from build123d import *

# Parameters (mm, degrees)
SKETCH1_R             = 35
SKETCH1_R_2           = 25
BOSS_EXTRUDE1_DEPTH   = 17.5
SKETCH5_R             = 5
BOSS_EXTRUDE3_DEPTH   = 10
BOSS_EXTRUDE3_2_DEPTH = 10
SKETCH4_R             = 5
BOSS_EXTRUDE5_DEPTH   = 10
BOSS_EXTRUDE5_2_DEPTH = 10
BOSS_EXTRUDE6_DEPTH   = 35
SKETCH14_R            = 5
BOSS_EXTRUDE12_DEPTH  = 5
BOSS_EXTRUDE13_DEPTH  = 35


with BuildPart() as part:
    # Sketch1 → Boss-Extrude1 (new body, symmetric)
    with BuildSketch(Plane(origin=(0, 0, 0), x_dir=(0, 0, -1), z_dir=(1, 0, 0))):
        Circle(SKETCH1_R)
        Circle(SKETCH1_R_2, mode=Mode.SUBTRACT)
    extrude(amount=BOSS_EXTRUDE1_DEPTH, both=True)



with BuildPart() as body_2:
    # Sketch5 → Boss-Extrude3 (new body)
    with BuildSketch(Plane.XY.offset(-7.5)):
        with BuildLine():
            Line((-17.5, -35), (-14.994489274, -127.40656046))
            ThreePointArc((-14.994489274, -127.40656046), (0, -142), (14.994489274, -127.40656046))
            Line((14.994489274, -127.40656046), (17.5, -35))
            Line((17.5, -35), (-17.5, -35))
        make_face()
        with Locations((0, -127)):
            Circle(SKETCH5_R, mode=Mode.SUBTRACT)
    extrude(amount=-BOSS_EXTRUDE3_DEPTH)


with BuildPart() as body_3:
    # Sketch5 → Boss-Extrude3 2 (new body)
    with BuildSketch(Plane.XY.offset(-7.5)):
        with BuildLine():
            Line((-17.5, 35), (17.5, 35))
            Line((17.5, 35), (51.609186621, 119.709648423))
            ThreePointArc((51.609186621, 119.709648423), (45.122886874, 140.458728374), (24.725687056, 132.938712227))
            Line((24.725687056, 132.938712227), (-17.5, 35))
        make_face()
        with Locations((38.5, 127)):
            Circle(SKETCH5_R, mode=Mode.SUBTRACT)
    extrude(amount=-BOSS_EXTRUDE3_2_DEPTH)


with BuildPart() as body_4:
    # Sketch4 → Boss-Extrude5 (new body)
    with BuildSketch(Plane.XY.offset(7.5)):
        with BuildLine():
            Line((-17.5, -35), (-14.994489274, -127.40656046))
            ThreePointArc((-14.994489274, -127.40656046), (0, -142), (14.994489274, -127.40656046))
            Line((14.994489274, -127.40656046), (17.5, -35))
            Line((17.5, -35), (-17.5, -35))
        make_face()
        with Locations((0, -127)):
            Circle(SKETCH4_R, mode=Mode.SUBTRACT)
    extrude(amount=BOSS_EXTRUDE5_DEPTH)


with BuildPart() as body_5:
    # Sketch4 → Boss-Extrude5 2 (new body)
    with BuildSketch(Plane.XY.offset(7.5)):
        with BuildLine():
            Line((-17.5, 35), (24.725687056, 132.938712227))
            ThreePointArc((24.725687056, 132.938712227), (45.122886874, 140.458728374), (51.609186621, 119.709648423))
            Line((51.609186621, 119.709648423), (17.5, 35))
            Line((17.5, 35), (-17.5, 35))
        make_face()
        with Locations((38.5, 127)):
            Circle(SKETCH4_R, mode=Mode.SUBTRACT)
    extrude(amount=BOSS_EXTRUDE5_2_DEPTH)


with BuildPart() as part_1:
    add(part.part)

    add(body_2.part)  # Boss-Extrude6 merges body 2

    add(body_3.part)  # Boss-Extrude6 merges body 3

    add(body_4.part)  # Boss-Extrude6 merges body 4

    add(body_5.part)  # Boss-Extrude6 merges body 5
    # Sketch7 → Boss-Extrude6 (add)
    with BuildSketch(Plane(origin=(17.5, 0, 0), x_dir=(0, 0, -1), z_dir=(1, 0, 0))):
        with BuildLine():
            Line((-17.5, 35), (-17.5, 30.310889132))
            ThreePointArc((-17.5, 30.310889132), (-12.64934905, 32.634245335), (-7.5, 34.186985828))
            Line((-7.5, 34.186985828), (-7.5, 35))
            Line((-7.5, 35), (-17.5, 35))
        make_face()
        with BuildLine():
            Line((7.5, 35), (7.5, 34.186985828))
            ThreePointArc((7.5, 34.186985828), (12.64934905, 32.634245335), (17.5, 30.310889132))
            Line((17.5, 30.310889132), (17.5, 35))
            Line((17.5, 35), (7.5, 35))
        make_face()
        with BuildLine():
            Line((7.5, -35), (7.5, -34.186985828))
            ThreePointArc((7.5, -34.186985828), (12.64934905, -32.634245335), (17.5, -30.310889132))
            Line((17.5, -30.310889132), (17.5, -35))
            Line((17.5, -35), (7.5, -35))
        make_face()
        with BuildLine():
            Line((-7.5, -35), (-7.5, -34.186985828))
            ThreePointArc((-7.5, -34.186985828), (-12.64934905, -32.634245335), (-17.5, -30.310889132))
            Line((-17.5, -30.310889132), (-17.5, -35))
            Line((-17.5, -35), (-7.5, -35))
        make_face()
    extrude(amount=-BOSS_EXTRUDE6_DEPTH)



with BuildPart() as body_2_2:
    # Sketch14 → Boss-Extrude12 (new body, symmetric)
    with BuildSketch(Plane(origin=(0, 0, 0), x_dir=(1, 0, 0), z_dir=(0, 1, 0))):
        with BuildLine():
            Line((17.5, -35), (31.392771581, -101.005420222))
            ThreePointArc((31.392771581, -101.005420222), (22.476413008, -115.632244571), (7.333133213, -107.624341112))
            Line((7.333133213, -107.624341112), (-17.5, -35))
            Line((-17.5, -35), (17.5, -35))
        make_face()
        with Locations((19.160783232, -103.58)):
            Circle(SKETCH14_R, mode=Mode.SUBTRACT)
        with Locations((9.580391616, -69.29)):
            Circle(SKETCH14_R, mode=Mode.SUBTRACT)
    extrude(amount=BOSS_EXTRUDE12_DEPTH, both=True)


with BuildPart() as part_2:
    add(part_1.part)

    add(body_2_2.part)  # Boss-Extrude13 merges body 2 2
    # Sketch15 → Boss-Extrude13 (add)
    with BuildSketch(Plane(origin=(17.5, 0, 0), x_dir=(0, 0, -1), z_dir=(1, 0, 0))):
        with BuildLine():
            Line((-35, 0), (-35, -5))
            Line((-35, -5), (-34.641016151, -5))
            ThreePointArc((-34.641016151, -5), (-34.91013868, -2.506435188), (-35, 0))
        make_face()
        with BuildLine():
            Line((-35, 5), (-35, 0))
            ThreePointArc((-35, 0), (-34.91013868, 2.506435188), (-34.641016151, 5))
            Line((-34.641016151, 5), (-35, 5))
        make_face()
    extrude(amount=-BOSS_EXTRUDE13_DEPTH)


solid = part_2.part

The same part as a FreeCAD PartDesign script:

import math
import FreeCAD as App
import Part
import Sketcher

V = App.Vector

doc = App.newDocument("Part")
body = doc.addObject("PartDesign::Body", "Body")

# Sketch on YZ plane
sketch1 = body.newObject("Sketcher::SketchObject", "Sketch")
sketch1.AttachmentSupport = (doc.getObject("YZ_Plane"), [""])
sketch1.MapMode = "FlatFace"
sketch1.addGeometry([
    Part.Circle(V(0, 0, 0), V(0, 0, 1), 35),
    Part.Circle(V(0, 0, 0), V(0, 0, 1), 25),
], False)
sketch1.addConstraint([
    Sketcher.Constraint("Coincident", 0, 3, -1, 1),
    Sketcher.Constraint("Coincident", 1, 3, -1, 1),
    Sketcher.Constraint("Diameter", 0, 70.0),
    Sketcher.Constraint("Diameter", 1, 50.0),
])
pad1 = body.newObject("PartDesign::Pad", "Pad")
pad1.Profile = sketch1
pad1.Length = 35
pad1.Midplane = True
body2 = doc.addObject("PartDesign::Body", "Body001")

# Sketch on XY plane
sketch2 = body2.newObject("Sketcher::SketchObject", "Sketch001")
sketch2.AttachmentSupport = (doc.getObject("XY_Plane001"), [""])
sketch2.MapMode = "FlatFace"
sketch2.AttachmentOffset = App.Placement(V(0, 0, -7.5), App.Rotation())
sketch2.addGeometry([
    Part.LineSegment(V(-18, -35, 0), V(-15, -127, 0)),  # 0
    Part.ArcOfCircle(Part.Circle(V(0, -127, 0), V(0, 0, 1), 15), math.radians(-178), math.radians(-2)),  # 1
    Part.LineSegment(V(15, -127, 0), V(18, -35, 0)),  # 2
    Part.LineSegment(V(18, -35, 0), V(-18, -35, 0)),  # 3
    Part.Circle(V(0, -127, 0), V(0, 0, 1), 5),  # 4
], False)
sketch2.addConstraint([
    Sketcher.Constraint("Tangent", 0, 2, 1, 1),
    Sketcher.Constraint("Tangent", 1, 2, 2, 1),
    Sketcher.Constraint("Coincident", 2, 2, 3, 1),
    Sketcher.Constraint("Coincident", 3, 2, 0, 1),
    Sketcher.Constraint("Horizontal", 3),
    Sketcher.Constraint("Coincident", 4, 3, 1, 3),
    Sketcher.Constraint("Symmetric", 0, 2, 1, 2, -2),
    Sketcher.Constraint("Diameter", 4, 10.0),
    Sketcher.Constraint("Radius", 1, 15.0),
    Sketcher.Constraint("DistanceX", 3, 2, 3, 1, 35.0),
    Sketcher.Constraint("DistanceY", 1, 3, -1, 1, 127.0),
    Sketcher.Constraint("DistanceY", 2, 2, -1, 1, 35.0),
])
pad2 = body2.newObject("PartDesign::Pad", "Pad001")
pad2.Profile = sketch2
pad2.Length = 10
pad2.Reversed = True
body3 = doc.addObject("PartDesign::Body", "Body002")

# Sketch on XY plane
sketch3 = body3.newObject("Sketcher::SketchObject", "Sketch002")
sketch3.AttachmentSupport = (doc.getObject("XY_Plane002"), [""])
sketch3.MapMode = "FlatFace"
sketch3.AttachmentOffset = App.Placement(V(0, 0, -7.5), App.Rotation())
sketch3.addGeometry([
    Part.LineSegment(V(-18, 35, 0), V(18, 35, 0)),  # 0
    Part.LineSegment(V(18, 35, 0), V(52, 120, 0)),  # 1
    Part.ArcOfCircle(Part.Circle(V(38, 127, 0), V(0, 0, 1), 15), math.radians(-29), math.radians(157)),  # 2
    Part.LineSegment(V(25, 133, 0), V(-18, 35, 0)),  # 3
    Part.Circle(V(38, 127, 0), V(0, 0, 1), 5),  # 4
], False)
sketch3.addConstraint([
    Sketcher.Constraint("Coincident", 0, 2, 1, 1),
    Sketcher.Constraint("Coincident", 1, 2, 2, 1),
    Sketcher.Constraint("Tangent", 2, 2, 3, 1),
    Sketcher.Constraint("Coincident", 3, 2, 0, 1),
    Sketcher.Constraint("Horizontal", 0),
    Sketcher.Constraint("Coincident", 4, 3, 2, 3),
    Sketcher.Constraint("Diameter", 4, 10.0),
    Sketcher.Constraint("Radius", 2, 15.0),
    Sketcher.Constraint("DistanceX", 0, 1, 0, 2, 35.0),
    Sketcher.Constraint("DistanceY", -1, 1, 2, 3, 127.0),
    Sketcher.Constraint("DistanceY", -1, 1, 0, 2, 35.0),
    Sketcher.Constraint("DistanceX", 0, 2, 2, 3, 21.0),
    Sketcher.Constraint("DistanceX", -1, 1, 2, 3, 38.5),
    Sketcher.Constraint("DistanceX", 2, 2, 1, 2, 26.8835),
])
pad3 = body3.newObject("PartDesign::Pad", "Pad002")
pad3.Profile = sketch3
pad3.Length = 10
pad3.Reversed = True
body4 = doc.addObject("PartDesign::Body", "Body003")

# Sketch on XY plane
sketch4 = body4.newObject("Sketcher::SketchObject", "Sketch003")
sketch4.AttachmentSupport = (doc.getObject("XY_Plane003"), [""])
sketch4.MapMode = "FlatFace"
sketch4.AttachmentOffset = App.Placement(V(0, 0, 7.5), App.Rotation())
sketch4.addGeometry([
    Part.LineSegment(V(-18, -35, 0), V(-15, -127, 0)),  # 0
    Part.ArcOfCircle(Part.Circle(V(0, -127, 0), V(0, 0, 1), 15), math.radians(-178), math.radians(-2)),  # 1
    Part.LineSegment(V(15, -127, 0), V(18, -35, 0)),  # 2
    Part.LineSegment(V(18, -35, 0), V(-18, -35, 0)),  # 3
    Part.Circle(V(0, -127, 0), V(0, 0, 1), 5),  # 4
], False)
sketch4.addConstraint([
    Sketcher.Constraint("Tangent", 0, 2, 1, 1),
    Sketcher.Constraint("Tangent", 1, 2, 2, 1),
    Sketcher.Constraint("Coincident", 2, 2, 3, 1),
    Sketcher.Constraint("Coincident", 3, 2, 0, 1),
    Sketcher.Constraint("Horizontal", 3),
    Sketcher.Constraint("Coincident", 4, 3, 1, 3),
    Sketcher.Constraint("Symmetric", 0, 2, 1, 2, -2),
    Sketcher.Constraint("Diameter", 4, 10.0),
    Sketcher.Constraint("Radius", 1, 15.0),
    Sketcher.Constraint("DistanceX", 3, 2, 3, 1, 35.0),
    Sketcher.Constraint("DistanceY", 1, 3, -1, 1, 127.0),
    Sketcher.Constraint("DistanceY", 2, 2, -1, 1, 35.0),
])
pad4 = body4.newObject("PartDesign::Pad", "Pad003")
pad4.Profile = sketch4
pad4.Length = 10
body5 = doc.addObject("PartDesign::Body", "Body004")

# Sketch on XY plane
sketch5 = body5.newObject("Sketcher::SketchObject", "Sketch004")
sketch5.AttachmentSupport = (doc.getObject("XY_Plane004"), [""])
sketch5.MapMode = "FlatFace"
sketch5.AttachmentOffset = App.Placement(V(0, 0, 7.5), App.Rotation())
sketch5.addGeometry([
    Part.LineSegment(V(25, 133, 0), V(-18, 35, 0)),  # 0
    Part.LineSegment(V(-18, 35, 0), V(18, 35, 0)),  # 1
    Part.LineSegment(V(18, 35, 0), V(52, 120, 0)),  # 2
    Part.ArcOfCircle(Part.Circle(V(38, 127, 0), V(0, 0, 1), 15), math.radians(-29), math.radians(157)),  # 3
    Part.Circle(V(38, 127, 0), V(0, 0, 1), 5),  # 4
], False)
sketch5.addConstraint([
    Sketcher.Constraint("Coincident", 0, 2, 1, 1),
    Sketcher.Constraint("Coincident", 1, 2, 2, 1),
    Sketcher.Constraint("Coincident", 2, 2, 3, 1),
    Sketcher.Constraint("Tangent", 3, 2, 0, 1),
    Sketcher.Constraint("Horizontal", 1),
    Sketcher.Constraint("Coincident", 4, 3, 3, 3),
    Sketcher.Constraint("Diameter", 4, 10.0),
    Sketcher.Constraint("Radius", 3, 15.0),
    Sketcher.Constraint("DistanceX", 1, 1, 1, 2, 35.0),
    Sketcher.Constraint("DistanceY", -1, 1, 3, 3, 127.0),
    Sketcher.Constraint("DistanceY", -1, 1, 0, 2, 35.0),
    Sketcher.Constraint("DistanceX", 0, 2, 3, 3, 56.0),
    Sketcher.Constraint("DistanceX", -1, 1, 3, 3, 38.5),
    Sketcher.Constraint("DistanceX", 3, 2, 2, 2, 26.8835),
])
pad5 = body5.newObject("PartDesign::Pad", "Pad004")
pad5.Profile = sketch5
pad5.Length = 10
body.AllowCompound = True
doc.recompute()

boolean = body.newObject("PartDesign::Boolean", "Boolean")
boolean.Type = "Fuse"
boolean.addObjects([body2])
doc.recompute()

boolean2 = body.newObject("PartDesign::Boolean", "Boolean001")
boolean2.Type = "Fuse"
boolean2.addObjects([body3])
doc.recompute()

boolean3 = body.newObject("PartDesign::Boolean", "Boolean002")
boolean3.Type = "Fuse"
boolean3.addObjects([body4])
doc.recompute()

boolean4 = body.newObject("PartDesign::Boolean", "Boolean003")
boolean4.Type = "Fuse"
boolean4.addObjects([body5])

# Sketch on YZ plane
sketch6 = body.newObject("Sketcher::SketchObject", "Sketch005")
sketch6.AttachmentSupport = (doc.getObject("YZ_Plane"), [""])
sketch6.MapMode = "FlatFace"
sketch6.AttachmentOffset = App.Placement(V(0, 0, 17.5), App.Rotation())
sketch6.addGeometry([
    Part.LineSegment(V(35, 17.5, 0), V(30.3, 17.5, 0)),  # 0
    Part.ArcOfCircle(Part.Circle(V(0, 0, 0), V(0, 0, 1), 35), math.radians(12.37), math.radians(30)),  # 1
    Part.LineSegment(V(34.2, 7.5, 0), V(35, 7.5, 0)),  # 2
    Part.LineSegment(V(35, 7.5, 0), V(35, 17.5, 0)),  # 3
    Part.LineSegment(V(35, -7.5, 0), V(34.2, -7.5, 0)),  # 4
    Part.ArcOfCircle(Part.Circle(V(0, 0, 0), V(0, 0, 1), 35), math.radians(-30), math.radians(-12.37)),  # 5
    Part.LineSegment(V(30.3, -17.5, 0), V(35, -17.5, 0)),  # 6
    Part.LineSegment(V(35, -17.5, 0), V(35, -7.5, 0)),  # 7
    Part.LineSegment(V(-34.2, -7.5, 0), V(-35, -7.5, 0)),  # 8
    Part.LineSegment(V(-35, -7.5, 0), V(-35, -17.5, 0)),  # 9
    Part.LineSegment(V(-35, -17.5, 0), V(-30.3, -17.5, 0)),  # 10
    Part.ArcOfCircle(Part.Circle(V(0, 0, 0), V(0, 0, 1), 35), math.radians(-167.63), math.radians(-150)),  # 11
    Part.LineSegment(V(-35, 7.5, 0), V(-34.2, 7.5, 0)),  # 12
    Part.ArcOfCircle(Part.Circle(V(0, 0, 0), V(0, 0, 1), 35), math.radians(150), math.radians(167.63)),  # 13
    Part.LineSegment(V(-30.3, 17.5, 0), V(-35, 17.5, 0)),  # 14
    Part.LineSegment(V(-35, 17.5, 0), V(-35, 7.5, 0)),  # 15
], False)
sketch6.addConstraint([
    Sketcher.Constraint("Coincident", 0, 2, 1, 2),
    Sketcher.Constraint("Coincident", 1, 1, 2, 1),
    Sketcher.Constraint("Coincident", 2, 2, 3, 1),
    Sketcher.Constraint("Coincident", 3, 2, 0, 1),
    Sketcher.Constraint("Coincident", 4, 2, 5, 2),
    Sketcher.Constraint("Coincident", 5, 1, 6, 1),
    Sketcher.Constraint("Coincident", 6, 2, 7, 1),
    Sketcher.Constraint("Coincident", 7, 2, 4, 1),
    Sketcher.Constraint("Coincident", 8, 2, 9, 1),
    Sketcher.Constraint("Coincident", 9, 2, 10, 1),
    Sketcher.Constraint("Coincident", 10, 2, 11, 2),
    Sketcher.Constraint("Coincident", 11, 1, 8, 1),
    Sketcher.Constraint("Coincident", 12, 2, 13, 2),
    Sketcher.Constraint("Coincident", 13, 1, 14, 1),
    Sketcher.Constraint("Coincident", 14, 2, 15, 1),
    Sketcher.Constraint("Coincident", 15, 2, 12, 1),
    Sketcher.Constraint("Horizontal", 0),
    Sketcher.Constraint("Horizontal", 2),
    Sketcher.Constraint("Vertical", 3),
    Sketcher.Constraint("Horizontal", 4),
    Sketcher.Constraint("Horizontal", 6),
    Sketcher.Constraint("Vertical", 7),
    Sketcher.Constraint("Horizontal", 8),
    Sketcher.Constraint("Vertical", 9),
    Sketcher.Constraint("Horizontal", 10),
    Sketcher.Constraint("Horizontal", 12),
    Sketcher.Constraint("Horizontal", 14),
    Sketcher.Constraint("Vertical", 15),
    Sketcher.Constraint("Coincident", 1, 3, -1, 1),
    Sketcher.Constraint("Coincident", 5, 3, -1, 1),
    Sketcher.Constraint("Coincident", 11, 3, -1, 1),
    Sketcher.Constraint("Coincident", 13, 3, -1, 1),
    Sketcher.Constraint("Equal", 1, 5),
    Sketcher.Constraint("Equal", 5, 11),
    Sketcher.Constraint("Equal", 11, 13),
    Sketcher.Constraint("Symmetric", 2, 2, 8, 2, -1, 1),
    Sketcher.Constraint("Symmetric", 6, 2, 14, 2, -1, 1),
    Sketcher.Constraint("Symmetric", 7, 2, 8, 2, -2),
    Sketcher.Constraint("Horizontal", 6, 2, 9, 2),
    Sketcher.Constraint("Horizontal", 2, 2, 12, 2),
    Sketcher.Constraint("Horizontal", 3, 2, 13, 1),
    Sketcher.Constraint("Radius", 1, 35.0),
    Sketcher.Constraint("DistanceY", 3, 1, 3, 2, 10.0),
    Sketcher.Constraint("DistanceX", -1, 1, 2, 2, 35.0),
    Sketcher.Constraint("DistanceY", 4, 2, 1, 1, 15.0),
])
pad6 = body.newObject("PartDesign::Pad", "Pad005")
pad6.Profile = sketch6
pad6.Length = 35
pad6.Reversed = True
body6 = doc.addObject("PartDesign::Body", "Body005")

# Sketch on XZ plane
sketch7 = body6.newObject("Sketcher::SketchObject", "Sketch006")
sketch7.AttachmentSupport = (doc.getObject("XZ_Plane005"), [""])
sketch7.MapMode = "FlatFace"
sketch7.addGeometry([
    Part.LineSegment(V(31, 101, 0), V(18, 35, 0)),  # 0
    Part.LineSegment(V(18, 35, 0), V(-18, 35, 0)),  # 1
    Part.LineSegment(V(-18, 35, 0), V(7, 108, 0)),  # 2
    Part.ArcOfCircle(Part.Circle(V(19, 104, 0), V(0, 0, 1), 12), math.radians(-12), math.radians(161)),  # 3
    Part.Circle(V(19, 104, 0), V(0, 0, 1), 5),  # 4
    Part.Circle(V(10, 69, 0), V(0, 0, 1), 5),  # 5
], False)
sketch7.addConstraint([
    Sketcher.Constraint("Coincident", 0, 2, 1, 1),
    Sketcher.Constraint("Coincident", 1, 2, 2, 1),
    Sketcher.Constraint("Tangent", 2, 2, 3, 2),
    Sketcher.Constraint("Tangent", 3, 1, 0, 1),
    Sketcher.Constraint("Horizontal", 1),
    Sketcher.Constraint("Coincident", 4, 3, 3, 3),
    Sketcher.Constraint("Equal", 4, 5),
    Sketcher.Constraint("Diameter", 4, 10.0),
    Sketcher.Constraint("Radius", 3, 12.5),
    Sketcher.Constraint("DistanceX", 1, 2, 1, 1, 35.0),
    Sketcher.Constraint("DistanceY", -1, 1, 0, 2, 35.0),
    Sketcher.Constraint("DistanceX", -1, 1, 0, 2, 17.5),
    Sketcher.Constraint("DistanceY", -1, 1, 3, 3, 103.58),
    Sketcher.Constraint("DistanceY", -1, 1, 5, 3, 69.29),
    Sketcher.Constraint("DistanceX", -1, 1, 5, 3, 9.580392),
    Sketcher.Constraint("DistanceY", -1, 1, 2, 2, 107.624341),
])
pad7 = body6.newObject("PartDesign::Pad", "Pad006")
pad7.Profile = sketch7
pad7.Length = 10
pad7.Midplane = True
body.AllowCompound = True
doc.recompute()

boolean5 = body.newObject("PartDesign::Boolean", "Boolean004")
boolean5.Type = "Fuse"
boolean5.addObjects([body6])

# Sketch on YZ plane
sketch8 = body.newObject("Sketcher::SketchObject", "Sketch007")
sketch8.AttachmentSupport = (doc.getObject("YZ_Plane"), [""])
sketch8.MapMode = "FlatFace"
sketch8.AttachmentOffset = App.Placement(V(0, 0, 17.5), App.Rotation())
sketch8.addGeometry([
    Part.LineSegment(V(0, 35, 0), V(-5, 35, 0)),  # 0
    Part.LineSegment(V(-5, 35, 0), V(-5, 34.64, 0)),  # 1
    Part.ArcOfCircle(Part.Circle(V(0, 0, 0), V(0, 0, 1), 35), math.radians(90), math.radians(98.21)),  # 2
    Part.LineSegment(V(5, 35, 0), V(0, 35, 0)),  # 3
    Part.ArcOfCircle(Part.Circle(V(0, 0, 0), V(0, 0, 1), 35), math.radians(81.79), math.radians(90)),  # 4
    Part.LineSegment(V(5, 34.64, 0), V(5, 35, 0)),  # 5
], False)
sketch8.addConstraint([
    Sketcher.Constraint("Coincident", 0, 2, 1, 1),
    Sketcher.Constraint("Coincident", 1, 2, 2, 2),
    Sketcher.Constraint("Tangent", 2, 1, 0, 1),
    Sketcher.Constraint("Tangent", 3, 2, 4, 2),
    Sketcher.Constraint("Coincident", 4, 1, 5, 1),
    Sketcher.Constraint("Coincident", 5, 2, 3, 1),
    Sketcher.Constraint("Horizontal", 0),
    Sketcher.Constraint("Vertical", 1),
    Sketcher.Constraint("Horizontal", 3),
    Sketcher.Constraint("Vertical", 5),
    Sketcher.Constraint("Coincident", 2, 3, -1, 1),
    Sketcher.Constraint("Coincident", 4, 3, -1, 1),
    Sketcher.Constraint("Equal", 2, 4),
    Sketcher.Constraint("Horizontal", 1, 2, 4, 1),
    Sketcher.Constraint("Radius", 2, 35.0),
    Sketcher.Constraint("DistanceX", 0, 2, 0, 1, 5.0),
])
pad8 = body.newObject("PartDesign::Pad", "Pad007")
pad8.Profile = sketch8
pad8.Length = 35
pad8.Reversed = True

doc.recompute()
